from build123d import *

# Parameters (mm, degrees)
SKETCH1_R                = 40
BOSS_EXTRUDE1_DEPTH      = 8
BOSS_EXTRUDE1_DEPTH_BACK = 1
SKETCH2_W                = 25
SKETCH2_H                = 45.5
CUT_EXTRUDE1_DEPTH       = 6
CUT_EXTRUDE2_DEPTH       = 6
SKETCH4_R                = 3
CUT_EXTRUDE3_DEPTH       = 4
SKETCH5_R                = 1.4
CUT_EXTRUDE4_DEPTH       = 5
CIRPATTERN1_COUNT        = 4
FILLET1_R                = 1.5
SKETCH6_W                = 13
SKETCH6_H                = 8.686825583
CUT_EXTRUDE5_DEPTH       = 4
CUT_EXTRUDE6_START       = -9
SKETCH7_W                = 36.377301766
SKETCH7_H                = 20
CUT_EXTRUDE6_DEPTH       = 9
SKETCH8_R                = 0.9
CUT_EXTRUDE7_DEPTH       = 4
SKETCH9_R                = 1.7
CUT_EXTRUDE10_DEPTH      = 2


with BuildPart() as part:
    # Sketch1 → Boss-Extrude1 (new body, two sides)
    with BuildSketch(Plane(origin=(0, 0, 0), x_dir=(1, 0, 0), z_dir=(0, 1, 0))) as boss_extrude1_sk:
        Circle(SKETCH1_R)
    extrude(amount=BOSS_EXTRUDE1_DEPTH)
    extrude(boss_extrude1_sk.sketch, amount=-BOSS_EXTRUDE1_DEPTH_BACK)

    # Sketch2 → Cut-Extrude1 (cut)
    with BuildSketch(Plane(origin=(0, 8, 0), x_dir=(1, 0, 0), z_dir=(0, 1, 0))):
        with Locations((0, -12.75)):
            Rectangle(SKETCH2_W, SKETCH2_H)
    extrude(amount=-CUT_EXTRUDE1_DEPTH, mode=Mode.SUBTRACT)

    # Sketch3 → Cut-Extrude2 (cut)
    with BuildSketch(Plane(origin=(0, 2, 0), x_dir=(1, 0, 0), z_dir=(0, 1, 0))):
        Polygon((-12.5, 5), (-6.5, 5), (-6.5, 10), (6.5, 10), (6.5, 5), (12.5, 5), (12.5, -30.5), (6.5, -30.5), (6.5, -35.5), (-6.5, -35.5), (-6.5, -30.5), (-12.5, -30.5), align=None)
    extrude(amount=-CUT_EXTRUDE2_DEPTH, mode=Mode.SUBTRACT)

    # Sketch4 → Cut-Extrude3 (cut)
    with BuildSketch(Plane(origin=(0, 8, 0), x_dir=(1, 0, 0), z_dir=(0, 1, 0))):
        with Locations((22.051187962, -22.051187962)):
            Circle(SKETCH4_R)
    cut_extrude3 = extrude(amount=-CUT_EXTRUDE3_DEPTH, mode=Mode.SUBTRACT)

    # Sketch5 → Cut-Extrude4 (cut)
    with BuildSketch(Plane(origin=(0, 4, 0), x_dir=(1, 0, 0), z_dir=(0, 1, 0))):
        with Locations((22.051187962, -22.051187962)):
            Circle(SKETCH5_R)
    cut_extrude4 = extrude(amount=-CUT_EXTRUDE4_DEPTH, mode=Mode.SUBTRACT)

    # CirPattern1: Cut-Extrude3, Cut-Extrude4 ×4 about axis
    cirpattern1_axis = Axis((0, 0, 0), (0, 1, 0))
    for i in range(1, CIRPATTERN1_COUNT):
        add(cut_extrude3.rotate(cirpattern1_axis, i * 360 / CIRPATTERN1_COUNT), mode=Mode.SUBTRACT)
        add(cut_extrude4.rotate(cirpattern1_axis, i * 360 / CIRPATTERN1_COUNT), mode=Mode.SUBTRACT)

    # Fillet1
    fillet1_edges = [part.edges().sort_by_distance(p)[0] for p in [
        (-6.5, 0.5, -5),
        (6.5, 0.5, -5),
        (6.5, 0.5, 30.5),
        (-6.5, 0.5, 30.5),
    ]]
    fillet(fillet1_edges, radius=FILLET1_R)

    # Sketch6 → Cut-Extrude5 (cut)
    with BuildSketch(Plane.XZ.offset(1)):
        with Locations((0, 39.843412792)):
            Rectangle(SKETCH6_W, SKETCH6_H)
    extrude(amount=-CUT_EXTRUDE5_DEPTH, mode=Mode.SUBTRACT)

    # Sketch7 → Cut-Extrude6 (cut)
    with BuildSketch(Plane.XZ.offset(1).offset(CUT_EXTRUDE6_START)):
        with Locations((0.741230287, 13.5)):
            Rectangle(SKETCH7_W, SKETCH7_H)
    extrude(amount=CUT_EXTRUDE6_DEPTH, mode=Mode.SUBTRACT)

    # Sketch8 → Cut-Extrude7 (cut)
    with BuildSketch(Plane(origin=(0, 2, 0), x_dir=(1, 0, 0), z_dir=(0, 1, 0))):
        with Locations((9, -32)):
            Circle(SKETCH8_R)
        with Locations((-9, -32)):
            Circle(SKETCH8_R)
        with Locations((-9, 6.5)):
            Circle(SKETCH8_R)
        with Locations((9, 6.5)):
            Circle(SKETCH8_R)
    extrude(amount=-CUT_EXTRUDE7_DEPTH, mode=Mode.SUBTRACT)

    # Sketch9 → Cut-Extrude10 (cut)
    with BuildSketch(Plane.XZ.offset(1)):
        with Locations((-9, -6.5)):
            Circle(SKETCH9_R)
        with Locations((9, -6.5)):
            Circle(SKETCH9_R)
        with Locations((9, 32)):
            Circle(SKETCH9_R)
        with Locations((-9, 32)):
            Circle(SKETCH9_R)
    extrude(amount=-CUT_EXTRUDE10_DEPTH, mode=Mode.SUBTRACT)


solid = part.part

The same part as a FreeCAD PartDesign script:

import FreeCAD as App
import Part
import Sketcher

V = App.Vector
Q = App.Units.Quantity


def edges_at(feature, points):
    """Names of the edges that pass closest to the given points."""
    edges = feature.Shape.Edges
    near = lambda p: min(range(len(edges)), key=lambda i: edges[i].distToShape(Part.Vertex(*p))[0])
    return sorted({f"Edge{near(p) + 1}" for p in points})

doc = App.newDocument("Part")
body = doc.addObject("PartDesign::Body", "Body")

# Sketch on XZ plane
sketch1 = body.newObject("Sketcher::SketchObject", "Sketch")
sketch1.AttachmentSupport = (doc.getObject("XZ_Plane"), [""])
sketch1.MapMode = "FlatFace"
sketch1.addGeometry(Part.Circle(V(0, 0, 0), V(0, 0, 1), 40), False)
sketch1.addConstraint(Sketcher.Constraint("Coincident", 0, 3, -1, 1))
sketch1.addConstraint(Sketcher.Constraint("Diameter", 0, Q("80 mm")))
pad1 = body.newObject("PartDesign::Pad", "Pad")
pad1.Profile = sketch1
pad1.Type = "TwoLengths"
pad1.Length = 8
pad1.Length2 = 1
pad1.Reversed = True

# Sketch on XZ plane
sketch2 = body.newObject("Sketcher::SketchObject", "Sketch001")
sketch2.AttachmentSupport = (doc.getObject("XZ_Plane"), [""])
sketch2.MapMode = "FlatFace"
sketch2.AttachmentOffset = App.Placement(V(0, 0, -8), App.Rotation())
sketch2.addGeometry(Part.LineSegment(V(-12, -10, 0), V(-12, 36, 0)), False)
sketch2.addGeometry(Part.LineSegment(V(-12, 36, 0), V(12, 36, 0)), False)
sketch2.addGeometry(Part.LineSegment(V(12, 36, 0), V(12, -10, 0)), False)
sketch2.addGeometry(Part.LineSegment(V(12, -10, 0), V(-12, -10, 0)), False)
sketch2.addConstraint(Sketcher.Constraint("Coincident", 0, 2, 1, 1))
sketch2.addConstraint(Sketcher.Constraint("Coincident", 1, 2, 2, 1))
sketch2.addConstraint(Sketcher.Constraint("Coincident", 2, 2, 3, 1))
sketch2.addConstraint(Sketcher.Constraint("Coincident", 3, 2, 0, 1))
sketch2.addConstraint(Sketcher.Constraint("Vertical", 0))
sketch2.addConstraint(Sketcher.Constraint("Horizontal", 1))
sketch2.addConstraint(Sketcher.Constraint("Vertical", 2))
sketch2.addConstraint(Sketcher.Constraint("Horizontal", 3))
sketch2.addConstraint(Sketcher.Constraint("DistanceX", 1, 1, 1, 2, Q("25 mm")))
sketch2.addConstraint(Sketcher.Constraint("DistanceY", 0, 1, 0, 2, Q("45.5 mm")))
sketch2.addConstraint(Sketcher.Constraint("DistanceY", 2, 2, -1, 1, Q("10 mm")))
sketch2.addConstraint(Sketcher.Constraint("DistanceX", 0, 2, -1, 1, Q("12.5 mm")))
pocket1 = body.newObject("PartDesign::Pocket", "Pocket")
pocket1.Profile = sketch2
pocket1.Length = 6
pocket1.Reversed = True

# Sketch on XZ plane
sketch3 = body.newObject("Sketcher::SketchObject", "Sketch002")
sketch3.AttachmentSupport = (doc.getObject("XZ_Plane"), [""])
sketch3.MapMode = "FlatFace"
sketch3.AttachmentOffset = App.Placement(V(0, 0, -2), App.Rotation())
sketch3.addGeometry(Part.LineSegment(V(-6, -5, 0), V(-12, -5, 0)), False)
sketch3.addGeometry(Part.LineSegment(V(-12, -5, 0), V(-12, 30, 0)), False)
sketch3.addGeometry(Part.LineSegment(V(-12, 30, 0), V(-6, 30, 0)), False)
sketch3.addGeometry(Part.LineSegment(V(-6, 30, 0), V(-6, 36, 0)), False)
sketch3.addGeometry(Part.LineSegment(V(-6, 36, 0), V(6, 36, 0)), False)
sketch3.addGeometry(Part.LineSegment(V(6, 36, 0), V(6, 30, 0)), False)
sketch3.addGeometry(Part.LineSegment(V(6, 30, 0), V(12, 30, 0)), False)
sketch3.addGeometry(Part.LineSegment(V(12, 30, 0), V(12, -5, 0)), False)
sketch3.addGeometry(Part.LineSegment(V(12, -5, 0), V(6, -5, 0)), False)
sketch3.addGeometry(Part.LineSegment(V(6, -5, 0), V(6, -10, 0)), False)
sketch3.addGeometry(Part.LineSegment(V(6, -10, 0), V(-6, -10, 0)), False)
sketch3.addGeometry(Part.LineSegment(V(-6, -10, 0), V(-6, -5, 0)), False)
sketch3.addConstraint(Sketcher.Constraint("Coincident", 0, 2, 1, 1))
sketch3.addConstraint(Sketcher.Constraint("Coincident", 1, 2, 2, 1))
sketch3.addConstraint(Sketcher.Constraint("Coincident", 2, 2, 3, 1))
sketch3.addConstraint(Sketcher.Constraint("Coincident", 3, 2, 4, 1))
sketch3.addConstraint(Sketcher.Constraint("Coincident", 4, 2, 5, 1))
sketch3.addConstraint(Sketcher.Constraint("Coincident", 5, 2, 6, 1))
sketch3.addConstraint(Sketcher.Constraint("Coincident", 6, 2, 7, 1))
sketch3.addConstraint(Sketcher.Constraint("Coincident", 7, 2, 8, 1))
sketch3.addConstraint(Sketcher.Constraint("Coincident", 8, 2, 9, 1))
sketch3.addConstraint(Sketcher.Constraint("Coincident", 9, 2, 10, 1))
sketch3.addConstraint(Sketcher.Constraint("Coincident", 10, 2, 11, 1))
sketch3.addConstraint(Sketcher.Constraint("Coincident", 11, 2, 0, 1))
sketch3.addConstraint(Sketcher.Constraint("Horizontal", 0))
sketch3.addConstraint(Sketcher.Constraint("Vertical", 1))
sketch3.addConstraint(Sketcher.Constraint("Horizontal", 2))
sketch3.addConstraint(Sketcher.Constraint("Vertical", 3))
sketch3.addConstraint(Sketcher.Constraint("Horizontal", 4))
sketch3.addConstraint(Sketcher.Constraint("Vertical", 5))
sketch3.addConstraint(Sketcher.Constraint("Horizontal", 6))
sketch3.addConstraint(Sketcher.Constraint("Vertical", 7))
sketch3.addConstraint(Sketcher.Constraint("Horizontal", 8))
sketch3.addConstraint(Sketcher.Constraint("Vertical", 9))
sketch3.addConstraint(Sketcher.Constraint("Horizontal", 10))
sketch3.addConstraint(Sketcher.Constraint("Vertical", 11))
sketch3.addConstraint(Sketcher.Constraint("Symmetric", 2, 2, 5, 2, -2))
sketch3.addConstraint(Sketcher.Constraint("Symmetric", 0, 2, 7, 2, -2))
sketch3.addConstraint(Sketcher.Constraint("Vertical", 5, 2, 8, 2))
sketch3.addConstraint(Sketcher.Constraint("Vertical", 3, 2, 10, 2))
sketch3.addConstraint(Sketcher.Constraint("Equal", 5, 9))
sketch3.addConstraint(Sketcher.Constraint("DistanceX", 0, 2, 0, 1, Q("6 mm")))
sketch3.addConstraint(Sketcher.Constraint("DistanceX", 4, 1, 4, 2, Q("13 mm")))
sketch3.addConstraint(Sketcher.Constraint("DistanceY", 3, 1, 3, 2, Q("5 mm")))
sketch3.addConstraint(Sketcher.Constraint("DistanceY", 1, 1, 1, 2, Q("35.5 mm")))
sketch3.addConstraint(Sketcher.Constraint("DistanceY", 0, 2, -1, 1, Q("5 mm")))
pocket2 = body.newObject("PartDesign::Pocket", "Pocket001")
pocket2.Profile = sketch3
pocket2.Length = 6
pocket2.Reversed = True

# Sketch on XZ plane
sketch4 = body.newObject("Sketcher::SketchObject", "Sketch003")
sketch4.AttachmentSupport = (doc.getObject("XZ_Plane"), [""])
sketch4.MapMode = "FlatFace"
sketch4.AttachmentOffset = App.Placement(V(0, 0, -8), App.Rotation())
sketch4.addGeometry(Part.Circle(V(22.1, 22.1, 0), V(0, 0, 1), 3), False)
sketch4.addConstraint(Sketcher.Constraint("Diameter", 0, Q("6 mm")))
sketch4.addConstraint(Sketcher.Constraint("DistanceX", -1, 1, 0, 3, Q("22.051188 mm")))
sketch4.addConstraint(Sketcher.Constraint("DistanceY", -1, 1, 0, 3, Q("22.051188 mm")))
pocket3 = body.newObject("PartDesign::Pocket", "Pocket002")
pocket3.Profile = sketch4
pocket3.Length = 4
pocket3.Reversed = True

# Sketch on XZ plane
sketch5 = body.newObject("Sketcher::SketchObject", "Sketch004")
sketch5.AttachmentSupport = (doc.getObject("XZ_Plane"), [""])
sketch5.MapMode = "FlatFace"
sketch5.AttachmentOffset = App.Placement(V(0, 0, -4), App.Rotation())
sketch5.addGeometry(Part.Circle(V(22.1, 22.1, 0), V(0, 0, 1), 1.4), False)
sketch5.addConstraint(Sketcher.Constraint("Diameter", 0, Q("2.8 mm")))
sketch5.addConstraint(Sketcher.Constraint("DistanceX", -1, 1, 0, 3, Q("22.051188 mm")))
sketch5.addConstraint(Sketcher.Constraint("DistanceY", -1, 1, 0, 3, Q("22.051188 mm")))
pocket4 = body.newObject("PartDesign::Pocket", "Pocket003")
pocket4.Profile = sketch5
pocket4.Length = 5
pocket4.Reversed = True
doc.recompute()

polarpattern = body.newObject("PartDesign::PolarPattern", "PolarPattern")
polarpattern.Originals = [pocket3, pocket4]
polarpattern.Axis = (doc.getObject("Y_Axis"), [""])
polarpattern.Angle = 360
polarpattern.Occurrences = 4
body.Tip = polarpattern
doc.recompute()

fillet = body.newObject("PartDesign::Fillet", "Fillet")
fillet.Base = (polarpattern, edges_at(polarpattern, [
    (-6.5, 0.5, -5),
    (6.5, 0.5, -5),
    (6.5, 0.5, 30.5),
    (-6.5, 0.5, 30.5),
]))
fillet.Radius = 1.5

# Sketch on XZ plane
sketch6 = body.newObject("Sketcher::SketchObject", "Sketch005")
sketch6.AttachmentSupport = (doc.getObject("XZ_Plane"), [""])
sketch6.MapMode = "FlatFace"
sketch6.AttachmentOffset = App.Placement(V(0, 0, 1), App.Rotation())
sketch6.addGeometry(Part.LineSegment(V(-6, 44, 0), V(-6, 36, 0)), False)
sketch6.addGeometry(Part.LineSegment(V(-6, 36, 0), V(6, 36, 0)), False)
sketch6.addGeometry(Part.LineSegment(V(6, 36, 0), V(6, 44, 0)), False)
sketch6.addGeometry(Part.LineSegment(V(6, 44, 0), V(-6, 44, 0)), False)
sketch6.addConstraint(Sketcher.Constraint("Coincident", 0, 2, 1, 1))
sketch6.addConstraint(Sketcher.Constraint("Coincident", 1, 2, 2, 1))
sketch6.addConstraint(Sketcher.Constraint("Coincident", 2, 2, 3, 1))
sketch6.addConstraint(Sketcher.Constraint("Coincident", 3, 2, 0, 1))
sketch6.addConstraint(Sketcher.Constraint("Vertical", 0))
sketch6.addConstraint(Sketcher.Constraint("Horizontal", 1))
sketch6.addConstraint(Sketcher.Constraint("Vertical", 2))
sketch6.addConstraint(Sketcher.Constraint("Horizontal", 3))
sketch6.addConstraint(Sketcher.Constraint("DistanceX", 1, 1, 1, 2, Q("13 mm")))
sketch6.addConstraint(Sketcher.Constraint("DistanceX", 0, 2, -1, 1, Q("6.5 mm")))
sketch6.addConstraint(Sketcher.Constraint("DistanceY", -1, 1, 0, 2, Q("35.5 mm")))
sketch6.addConstraint(Sketcher.Constraint("DistanceY", 0, 2, 0, 1, Q("8.686826 mm")))
pocket5 = body.newObject("PartDesign::Pocket", "Pocket004")
pocket5.Profile = sketch6
pocket5.Length = 4

# Sketch on XZ plane
sketch7 = body.newObject("Sketcher::SketchObject", "Sketch006")
sketch7.AttachmentSupport = (doc.getObject("XZ_Plane"), [""])
sketch7.MapMode = "FlatFace"
sketch7.AttachmentOffset = App.Placement(V(0, 0, -8), App.Rotation())
sketch7.addGeometry(Part.LineSegment(V(-17, 24, 0), V(-17, 4, 0)), False)
sketch7.addGeometry(Part.LineSegment(V(-17, 4, 0), V(19, 4, 0)), False)
sketch7.addGeometry(Part.LineSegment(V(19, 4, 0), V(19, 24, 0)), False)
sketch7.addGeometry(Part.LineSegment(V(19, 24, 0), V(-17, 24, 0)), False)
sketch7.addConstraint(Sketcher.Constraint("Coincident", 0, 2, 1, 1))
sketch7.addConstraint(Sketcher.Constraint("Coincident", 1, 2, 2, 1))
sketch7.addConstraint(Sketcher.Constraint("Coincident", 2, 2, 3, 1))
sketch7.addConstraint(Sketcher.Constraint("Coincident", 3, 2, 0, 1))
sketch7.addConstraint(Sketcher.Constraint("Vertical", 0))
sketch7.addConstraint(Sketcher.Constraint("Horizontal", 1))
sketch7.addConstraint(Sketcher.Constraint("Vertical", 2))
sketch7.addConstraint(Sketcher.Constraint("Horizontal", 3))
sketch7.addConstraint(Sketcher.Constraint("DistanceY", 0, 2, 0, 1, Q("20 mm")))
sketch7.addConstraint(Sketcher.Constraint("DistanceY", -1, 1, 0, 2, Q("3.5 mm")))
sketch7.addConstraint(Sketcher.Constraint("DistanceX", 1, 1, 1, 2, Q("36.377302 mm")))
sketch7.addConstraint(Sketcher.Constraint("DistanceX", 0, 2, -1, 1, Q("17.447421 mm")))
pocket6 = body.newObject("PartDesign::Pocket", "Pocket005")
pocket6.Profile = sketch7
pocket6.Length = 9
pocket6.Reversed = True

# Sketch on XZ plane
sketch8 = body.newObject("Sketcher::SketchObject", "Sketch007")
sketch8.AttachmentSupport = (doc.getObject("XZ_Plane"), [""])
sketch8.MapMode = "FlatFace"
sketch8.AttachmentOffset = App.Placement(V(0, 0, -2), App.Rotation())
sketch8.addGeometry(Part.Circle(V(9, 32, 0), V(0, 0, 1), 0.9), False)
sketch8.addGeometry(Part.Circle(V(-9, 32, 0), V(0, 0, 1), 0.9), False)
sketch8.addGeometry(Part.Circle(V(-9, -6.5, 0), V(0, 0, 1), 0.9), False)
sketch8.addGeometry(Part.Circle(V(9, -6.5, 0), V(0, 0, 1), 0.9), False)
sketch8.addConstraint(Sketcher.Constraint("Equal", 0, 1))
sketch8.addConstraint(Sketcher.Constraint("Equal", 1, 2))
sketch8.addConstraint(Sketcher.Constraint("Equal", 2, 3))
sketch8.addConstraint(Sketcher.Constraint("Symmetric", 0, 3, 1, 3, -2))
sketch8.addConstraint(Sketcher.Constraint("Symmetric", 2, 3, 3, 3, -2))
sketch8.addConstraint(Sketcher.Constraint("Vertical", 1, 3, 2, 3))
sketch8.addConstraint(Sketcher.Constraint("Diameter", 0, Q("1.8 mm")))
sketch8.addConstraint(Sketcher.Constraint("DistanceX", -1, 1, 0, 3, Q("9 mm")))
sketch8.addConstraint(Sketcher.Constraint("DistanceY", -1, 1, 0, 3, Q("32 mm")))
sketch8.addConstraint(Sketcher.Constraint("DistanceY", 2, 3, -1, 1, Q("6.5 mm")))
pocket7 = body.newObject("PartDesign::Pocket", "Pocket006")
pocket7.Profile = sketch8
pocket7.Length = 4
pocket7.Reversed = True

# Sketch on XZ plane
sketch9 = body.newObject("Sketcher::SketchObject", "Sketch008")
sketch9.AttachmentSupport = (doc.getObject("XZ_Plane"), [""])
sketch9.MapMode = "FlatFace"
sketch9.AttachmentOffset = App.Placement(V(0, 0, 1), App.Rotation())
sketch9.addGeometry(Part.Circle(V(-9, -6.5, 0), V(0, 0, 1), 1.7), False)
sketch9.addGeometry(Part.Circle(V(9, -6.5, 0), V(0, 0, 1), 1.7), False)
sketch9.addGeometry(Part.Circle(V(9, 32, 0), V(0, 0, 1), 1.7), False)
sketch9.addGeometry(Part.Circle(V(-9, 32, 0), V(0, 0, 1), 1.7), False)
sketch9.addConstraint(Sketcher.Constraint("Equal", 0, 1))
sketch9.addConstraint(Sketcher.Constraint("Equal", 1, 2))
sketch9.addConstraint(Sketcher.Constraint("Equal", 2, 3))
sketch9.addConstraint(Sketcher.Constraint("Symmetric", 0, 3, 1, 3, -2))
sketch9.addConstraint(Sketcher.Constraint("Symmetric", 2, 3, 3, 3, -2))
sketch9.addConstraint(Sketcher.Constraint("Vertical", 1, 3, 2, 3))
sketch9.addConstraint(Sketcher.Constraint("Diameter", 0, Q("3.4 mm")))
sketch9.addConstraint(Sketcher.Constraint("DistanceX", 0, 3, -1, 1, Q("9 mm")))
sketch9.addConstraint(Sketcher.Constraint("DistanceY", -1, 1, 2, 3, Q("32 mm")))
sketch9.addConstraint(Sketcher.Constraint("DistanceY", 0, 3, -1, 1, Q("6.5 mm")))
pocket8 = body.newObject("PartDesign::Pocket", "Pocket007")
pocket8.Profile = sketch9
pocket8.Length = 2

doc.recompute()
